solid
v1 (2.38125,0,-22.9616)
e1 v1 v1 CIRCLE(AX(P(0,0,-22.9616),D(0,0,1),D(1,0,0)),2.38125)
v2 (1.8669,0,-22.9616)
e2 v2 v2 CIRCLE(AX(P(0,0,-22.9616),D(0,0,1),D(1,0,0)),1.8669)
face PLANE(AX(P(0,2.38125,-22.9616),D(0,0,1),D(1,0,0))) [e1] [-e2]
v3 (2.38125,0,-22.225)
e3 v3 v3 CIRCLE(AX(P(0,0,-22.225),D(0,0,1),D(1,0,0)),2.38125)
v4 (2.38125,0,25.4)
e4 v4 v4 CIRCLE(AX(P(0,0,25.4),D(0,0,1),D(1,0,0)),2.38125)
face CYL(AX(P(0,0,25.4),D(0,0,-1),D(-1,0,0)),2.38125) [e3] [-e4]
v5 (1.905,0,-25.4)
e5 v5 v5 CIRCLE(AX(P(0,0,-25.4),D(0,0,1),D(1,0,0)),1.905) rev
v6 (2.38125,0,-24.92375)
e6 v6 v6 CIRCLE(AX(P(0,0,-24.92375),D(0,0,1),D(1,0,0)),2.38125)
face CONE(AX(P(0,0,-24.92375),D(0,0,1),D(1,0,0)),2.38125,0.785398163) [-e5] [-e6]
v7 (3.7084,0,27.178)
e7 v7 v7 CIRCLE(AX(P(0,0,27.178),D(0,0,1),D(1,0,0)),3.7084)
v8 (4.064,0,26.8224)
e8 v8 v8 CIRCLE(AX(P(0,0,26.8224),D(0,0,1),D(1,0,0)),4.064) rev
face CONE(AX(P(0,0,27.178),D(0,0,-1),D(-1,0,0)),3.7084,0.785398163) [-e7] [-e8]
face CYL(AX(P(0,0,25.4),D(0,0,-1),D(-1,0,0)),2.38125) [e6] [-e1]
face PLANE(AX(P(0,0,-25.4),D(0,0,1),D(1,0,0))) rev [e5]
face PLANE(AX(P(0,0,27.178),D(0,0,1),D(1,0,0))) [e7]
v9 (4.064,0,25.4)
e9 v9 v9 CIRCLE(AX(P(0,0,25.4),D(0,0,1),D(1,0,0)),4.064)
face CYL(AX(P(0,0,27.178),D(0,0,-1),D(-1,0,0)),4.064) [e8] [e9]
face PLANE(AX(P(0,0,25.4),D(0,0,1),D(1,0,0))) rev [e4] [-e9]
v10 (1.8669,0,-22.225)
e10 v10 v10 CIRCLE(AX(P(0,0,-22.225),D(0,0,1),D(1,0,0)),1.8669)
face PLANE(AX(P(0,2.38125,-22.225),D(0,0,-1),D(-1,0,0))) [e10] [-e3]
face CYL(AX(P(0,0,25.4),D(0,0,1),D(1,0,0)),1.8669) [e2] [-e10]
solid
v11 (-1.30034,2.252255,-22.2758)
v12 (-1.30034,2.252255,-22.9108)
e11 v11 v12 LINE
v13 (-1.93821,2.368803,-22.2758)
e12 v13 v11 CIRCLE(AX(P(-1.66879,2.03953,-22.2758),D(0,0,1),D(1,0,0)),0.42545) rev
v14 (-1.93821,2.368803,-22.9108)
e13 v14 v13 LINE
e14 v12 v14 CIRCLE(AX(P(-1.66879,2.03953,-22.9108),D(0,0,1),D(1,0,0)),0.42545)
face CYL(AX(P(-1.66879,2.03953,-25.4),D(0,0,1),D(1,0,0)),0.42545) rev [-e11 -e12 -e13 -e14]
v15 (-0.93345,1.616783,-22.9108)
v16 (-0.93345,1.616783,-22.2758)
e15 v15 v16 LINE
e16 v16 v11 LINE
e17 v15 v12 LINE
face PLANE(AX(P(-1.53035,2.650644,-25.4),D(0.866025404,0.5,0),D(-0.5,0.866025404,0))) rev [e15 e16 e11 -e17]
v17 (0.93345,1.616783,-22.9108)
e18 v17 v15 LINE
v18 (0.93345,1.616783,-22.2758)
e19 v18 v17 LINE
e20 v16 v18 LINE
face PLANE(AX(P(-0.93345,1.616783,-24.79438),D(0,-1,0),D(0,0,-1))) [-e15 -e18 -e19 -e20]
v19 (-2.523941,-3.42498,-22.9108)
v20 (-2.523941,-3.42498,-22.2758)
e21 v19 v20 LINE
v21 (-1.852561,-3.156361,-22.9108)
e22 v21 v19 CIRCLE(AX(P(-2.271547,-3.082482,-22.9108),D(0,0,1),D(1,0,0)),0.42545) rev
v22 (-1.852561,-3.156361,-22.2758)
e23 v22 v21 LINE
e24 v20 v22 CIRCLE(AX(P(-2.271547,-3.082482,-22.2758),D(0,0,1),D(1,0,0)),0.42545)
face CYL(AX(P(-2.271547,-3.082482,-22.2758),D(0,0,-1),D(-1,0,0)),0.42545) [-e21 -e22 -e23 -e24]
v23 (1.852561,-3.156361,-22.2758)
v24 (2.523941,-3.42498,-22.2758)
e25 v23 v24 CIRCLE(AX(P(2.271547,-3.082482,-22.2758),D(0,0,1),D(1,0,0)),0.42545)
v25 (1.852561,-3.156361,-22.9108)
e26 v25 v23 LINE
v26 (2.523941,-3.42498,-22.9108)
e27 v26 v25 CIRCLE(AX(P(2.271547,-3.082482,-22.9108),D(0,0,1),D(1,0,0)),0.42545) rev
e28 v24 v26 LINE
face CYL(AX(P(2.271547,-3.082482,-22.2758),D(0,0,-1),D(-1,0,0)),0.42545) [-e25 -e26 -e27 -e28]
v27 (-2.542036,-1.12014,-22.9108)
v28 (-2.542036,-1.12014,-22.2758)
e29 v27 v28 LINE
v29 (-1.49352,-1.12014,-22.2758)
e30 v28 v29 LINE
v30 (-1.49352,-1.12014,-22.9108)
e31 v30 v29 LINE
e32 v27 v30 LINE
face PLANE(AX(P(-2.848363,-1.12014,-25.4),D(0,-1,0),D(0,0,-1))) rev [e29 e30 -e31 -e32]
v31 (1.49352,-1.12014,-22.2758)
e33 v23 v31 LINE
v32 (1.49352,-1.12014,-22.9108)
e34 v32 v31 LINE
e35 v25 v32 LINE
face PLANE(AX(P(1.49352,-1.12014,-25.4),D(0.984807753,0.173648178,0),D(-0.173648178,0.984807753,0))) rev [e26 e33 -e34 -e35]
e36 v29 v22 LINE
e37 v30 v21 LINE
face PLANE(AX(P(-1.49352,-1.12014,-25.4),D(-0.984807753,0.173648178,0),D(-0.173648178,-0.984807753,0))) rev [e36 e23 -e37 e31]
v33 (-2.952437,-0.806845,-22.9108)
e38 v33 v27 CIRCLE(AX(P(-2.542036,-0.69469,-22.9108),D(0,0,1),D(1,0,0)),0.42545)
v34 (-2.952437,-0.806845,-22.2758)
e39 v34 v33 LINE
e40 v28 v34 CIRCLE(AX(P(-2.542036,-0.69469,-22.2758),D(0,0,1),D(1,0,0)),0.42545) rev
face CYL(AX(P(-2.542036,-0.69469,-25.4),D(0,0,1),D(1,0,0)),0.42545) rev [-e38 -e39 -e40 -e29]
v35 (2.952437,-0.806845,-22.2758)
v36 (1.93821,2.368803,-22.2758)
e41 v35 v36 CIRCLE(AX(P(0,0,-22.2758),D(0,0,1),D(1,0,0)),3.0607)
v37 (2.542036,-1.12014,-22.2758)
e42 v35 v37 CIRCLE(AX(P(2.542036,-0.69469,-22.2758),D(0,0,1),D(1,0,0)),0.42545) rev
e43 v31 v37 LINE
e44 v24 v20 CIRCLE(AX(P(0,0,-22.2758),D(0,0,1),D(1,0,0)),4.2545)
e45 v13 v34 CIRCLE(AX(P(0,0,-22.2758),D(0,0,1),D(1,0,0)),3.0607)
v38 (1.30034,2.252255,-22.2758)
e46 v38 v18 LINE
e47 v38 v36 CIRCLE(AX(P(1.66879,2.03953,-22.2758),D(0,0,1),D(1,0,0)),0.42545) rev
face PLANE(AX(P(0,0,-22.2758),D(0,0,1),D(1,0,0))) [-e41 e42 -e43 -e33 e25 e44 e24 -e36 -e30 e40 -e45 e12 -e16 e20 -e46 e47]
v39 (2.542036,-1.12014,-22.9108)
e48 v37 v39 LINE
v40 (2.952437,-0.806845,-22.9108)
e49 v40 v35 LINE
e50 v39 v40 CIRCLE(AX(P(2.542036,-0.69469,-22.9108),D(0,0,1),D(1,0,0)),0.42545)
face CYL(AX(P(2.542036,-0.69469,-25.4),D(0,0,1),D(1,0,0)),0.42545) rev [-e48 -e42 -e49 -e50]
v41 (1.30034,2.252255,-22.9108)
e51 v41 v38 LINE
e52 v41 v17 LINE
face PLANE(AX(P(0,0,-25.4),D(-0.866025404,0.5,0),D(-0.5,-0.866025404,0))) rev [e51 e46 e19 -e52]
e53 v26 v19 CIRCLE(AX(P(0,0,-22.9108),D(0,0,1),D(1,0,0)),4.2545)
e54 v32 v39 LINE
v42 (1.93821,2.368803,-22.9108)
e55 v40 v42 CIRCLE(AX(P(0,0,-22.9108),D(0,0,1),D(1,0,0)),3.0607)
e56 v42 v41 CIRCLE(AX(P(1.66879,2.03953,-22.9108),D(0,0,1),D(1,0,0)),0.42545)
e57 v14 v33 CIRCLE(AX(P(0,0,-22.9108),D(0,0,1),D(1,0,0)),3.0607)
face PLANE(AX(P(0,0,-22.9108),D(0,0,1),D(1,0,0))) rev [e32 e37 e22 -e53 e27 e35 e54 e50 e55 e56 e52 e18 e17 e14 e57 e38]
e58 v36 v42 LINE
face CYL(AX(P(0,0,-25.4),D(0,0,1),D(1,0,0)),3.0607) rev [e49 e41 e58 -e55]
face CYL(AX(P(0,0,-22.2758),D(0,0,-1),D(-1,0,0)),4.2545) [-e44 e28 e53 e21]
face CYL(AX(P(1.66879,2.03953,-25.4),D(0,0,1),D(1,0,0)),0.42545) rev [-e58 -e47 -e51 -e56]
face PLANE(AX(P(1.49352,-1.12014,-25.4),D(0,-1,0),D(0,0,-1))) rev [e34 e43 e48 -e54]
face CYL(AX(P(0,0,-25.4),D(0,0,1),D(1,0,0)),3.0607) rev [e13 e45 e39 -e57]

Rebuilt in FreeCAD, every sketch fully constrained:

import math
import FreeCAD as App
import Part
import Sketcher
from FreeCAD import Vector
Q = App.Units.Quantity


def edges_at(feature, points):
    """Names of the edges that pass closest to the given points."""
    edges = feature.Shape.Edges
    near = lambda p: min(range(len(edges)), key=lambda i: edges[i].distToShape(Part.Vertex(*p))[0])
    return sorted({f"Edge{near(p) + 1}" for p in points})


def add_polygon(sketch, points):
    """Adds a closed chain of lines whose ends are joined by coincident constraints."""
    first, n = sketch.GeometryCount, len(points)
    for a, b in zip(points, points[1:] + points[:1]):
        sketch.addGeometry(Part.LineSegment(App.Vector(*a, 0), App.Vector(*b, 0)), False)
    for i in range(n):
        sketch.addConstraint(Sketcher.Constraint("Coincident", first + i, 2, first + (i + 1) % n, 1))

doc = App.newDocument("Part")
body = doc.addObject("PartDesign::Body", "Body")

# Sketch on XY plane
sketch1 = body.newObject("Sketcher::SketchObject", "Sketch")
sketch1.AttachmentSupport = (doc.getObject("XY_Plane"), [""])
sketch1.MapMode = "FlatFace"
sketch1.addGeometry(Part.Circle(Vector(0, 0, 0), Vector(0, 0, 1), 2.4), False)
sketch1.addConstraint(Sketcher.Constraint("Coincident", 0, 3, -1, 1))
sketch1.addConstraint(Sketcher.Constraint("Diameter", 0, Q("0.1875 in")))
pad1 = body.newObject("PartDesign::Pad", "Pad")
pad1.Profile = sketch1
pad1.Length = Q("2 in")
pad1.Midplane = True

# Sketch on YZ plane
sketch2 = body.newObject("Sketcher::SketchObject", "Sketch001")
sketch2.AttachmentSupport = (doc.getObject("YZ_Plane"), [""])
sketch2.MapMode = "FlatFace"
add_polygon(sketch2, [(2.4, -22.2), (1.9, -22.2), (1.9, -23), (2.4, -23)])  # lines 0-3
sketch2.addConstraint(Sketcher.Constraint("Horizontal", 0))
sketch2.addConstraint(Sketcher.Constraint("Vertical", 1))
sketch2.addConstraint(Sketcher.Constraint("Horizontal", 2))
sketch2.addConstraint(Sketcher.Constraint("Vertical", 3))
sketch2.addConstraint(Sketcher.Constraint("DistanceY", 1, 2, 1, 1, Q("0.029 in")))
sketch2.addConstraint(Sketcher.Constraint("DistanceY", 0, 2, -1, 1, Q("0.875 in")))
sketch2.addConstraint(Sketcher.Constraint("DistanceX", -1, 1, 2, 2, Q("0.09375 in")))
sketch2.addConstraint(Sketcher.Constraint("DistanceX", -1, 1, 0, 2, Q("0.0735 in")))
groove = body.newObject("PartDesign::Groove", "Groove")
groove.Profile = sketch2
groove.ReferenceAxis = (sketch2, ["V_Axis"])
groove.Angle = 360

# Sketch on XY plane
sketch3 = body.newObject("Sketcher::SketchObject", "Sketch002")
sketch3.AttachmentSupport = (doc.getObject("XY_Plane"), [""])
sketch3.MapMode = "FlatFace"
sketch3.AttachmentOffset = App.Placement(Vector(0, 0, 1 * 25.4), App.Rotation())
sketch3.addGeometry(Part.Circle(Vector(0, 0, 0), Vector(0, 0, 1), 4.1), False)
sketch3.addConstraint(Sketcher.Constraint("Coincident", 0, 3, -1, 1))
sketch3.addConstraint(Sketcher.Constraint("Diameter", 0, Q("0.32 in")))
pad2 = body.newObject("PartDesign::Pad", "Pad001")
pad2.Profile = sketch3
pad2.Length = Q("0.07 in")
doc.recompute()

chamfer = body.newObject("PartDesign::Chamfer", "Chamfer")
chamfer.Base = (pad2, edges_at(pad2, [(-4.064, 0, 27.178)]))
chamfer.Size = Q("0.014 in")
doc.recompute()

chamfer2 = body.newObject("PartDesign::Chamfer", "Chamfer001")
chamfer2.Base = (chamfer, edges_at(chamfer, [(-2.381, 0, -25.4)]))
chamfer2.Size = 0.47625
body2 = doc.addObject("PartDesign::Body", "Body001")

# Sketch on XY plane
sketch4 = body2.newObject("Sketcher::SketchObject", "Sketch003")
sketch4.AttachmentSupport = (doc.getObject("XY_Plane001"), [""])
sketch4.MapMode = "FlatFace"
sketch4.AttachmentOffset = App.Placement(Vector(0, 0, -0.8895 * 25.4), App.Rotation())
sketch4.addGeometry(Part.Circle(Vector(0, 0, 0), Vector(0, 0, 1), 4.3), False)
sketch4.addGeometry(Part.Circle(Vector(0, 0, 0), Vector(0, 0, 1), 1.9), False)
sketch4.addConstraint(Sketcher.Constraint("Coincident", 0, 3, -1, 1))
sketch4.addConstraint(Sketcher.Constraint("Coincident", 1, 3, -1, 1))
sketch4.addConstraint(Sketcher.Constraint("Diameter", 0, Q("0.335 in")))
sketch4.addConstraint(Sketcher.Constraint("Diameter", 1, Q("0.147 in")))
pad3 = body2.newObject("PartDesign::Pad", "Pad002")
pad3.Profile = sketch4
pad3.Length = Q("0.025 in")
pad3.Midplane = True

# Sketch on XY plane
sketch5 = body2.newObject("Sketcher::SketchObject", "Sketch004")
sketch5.AttachmentSupport = (doc.getObject("XY_Plane001"), [""])
sketch5.MapMode = "FlatFace"
sketch5.addGeometry(Part.LineSegment(Vector(0, 0, 0), Vector(-1.5, 2.7, 0)), False)
sketch5.addGeometry(Part.ArcOfCircle(Part.Circle(Vector(0, 0, 0), Vector(0, 0, 1), 3.1), math.radians(120), math.radians(201)), False)
sketch5.addGeometry(Part.LineSegment(Vector(-2.8, -1.1, 0), Vector(-1.5, -1.1, 0)), False)
sketch5.addGeometry(Part.LineSegment(Vector(-1.5, -1.1, 0), Vector(-2, -3.8, 0)), False)
sketch5.addGeometry(Part.ArcOfCircle(Part.Circle(Vector(0, 0, 0), Vector(0, 0, 1), 4.3), math.radians(-117), math.radians(-63)), False)
sketch5.addGeometry(Part.LineSegment(Vector(2, -3.8, 0), Vector(1.5, -1.1, 0)), False)
sketch5.addGeometry(Part.LineSegment(Vector(1.5, -1.1, 0), Vector(2.8, -1.1, 0)), False)
sketch5.addGeometry(Part.ArcOfCircle(Part.Circle(Vector(0, 0, 0), Vector(0, 0, 1), 3.1), math.radians(-21), math.radians(60)), False)
sketch5.addGeometry(Part.LineSegment(Vector(1.5, 2.7, 0), Vector(0, 0, 0)), False)
sketch5.addConstraint(Sketcher.Constraint("Coincident", 0, 2, 1, 1))
sketch5.addConstraint(Sketcher.Constraint("Coincident", 1, 2, 2, 1))
sketch5.addConstraint(Sketcher.Constraint("Coincident", 2, 2, 3, 1))
sketch5.addConstraint(Sketcher.Constraint("Coincident", 3, 2, 4, 1))
sketch5.addConstraint(Sketcher.Constraint("Coincident", 4, 2, 5, 1))
sketch5.addConstraint(Sketcher.Constraint("Coincident", 5, 2, 6, 1))
sketch5.addConstraint(Sketcher.Constraint("Coincident", 6, 2, 7, 1))
sketch5.addConstraint(Sketcher.Constraint("Coincident", 7, 2, 8, 1))
sketch5.addConstraint(Sketcher.Constraint("Coincident", 8, 2, 0, 1))
sketch5.addConstraint(Sketcher.Constraint("Horizontal", 2))
sketch5.addConstraint(Sketcher.Constraint("Horizontal", 6))
sketch5.addConstraint(Sketcher.Constraint("Coincident", 1, 3, -1, 1))
sketch5.addConstraint(Sketcher.Constraint("Coincident", 4, 3, -1, 1))
sketch5.addConstraint(Sketcher.Constraint("Coincident", 7, 3, -1, 1))
sketch5.addConstraint(Sketcher.Constraint("Coincident", 8, 2, -1, 1))
sketch5.addConstraint(Sketcher.Constraint("Equal", 1, 7))
sketch5.addConstraint(Sketcher.Constraint("Symmetric", 2, 2, 5, 2, -2))
sketch5.addConstraint(Sketcher.Constraint("Horizontal", 3, 2, 4, 2))
sketch5.addConstraint(Sketcher.Constraint("Horizontal", 0, 2, 7, 2))
sketch5.addConstraint(Sketcher.Constraint("Angle", 0, Q("120 deg")))
sketch5.addConstraint(Sketcher.Constraint("Angle", 3, Q("-100 deg")))
sketch5.addConstraint(Sketcher.Constraint("Radius", 1, Q("0.1205 in")))
sketch5.addConstraint(Sketcher.Constraint("Radius", 4, Q("0.1675 in")))
sketch5.addConstraint(Sketcher.Constraint("DistanceY", 1, 2, -1, 1, Q("0.0441 in")))
sketch5.addConstraint(Sketcher.Constraint("DistanceX", 2, 2, -1, 1, Q("0.0588 in")))
pocket1 = body2.newObject("PartDesign::Pocket", "Pocket")
pocket1.Profile = sketch5
pocket1.Type = "ThroughAll"

# Sketch on XY plane
sketch6 = body2.newObject("Sketcher::SketchObject", "Sketch005")
sketch6.AttachmentSupport = (doc.getObject("XY_Plane001"), [""])
sketch6.MapMode = "FlatFace"
sketch6.AttachmentOffset = App.Placement(Vector(0, 0, -0.877 * 25.4), App.Rotation())
sketch6.addGeometry(Part.LineSegment(Vector(-0.9, 1.6, 0), Vector(0.9, 1.6, 0)), False)
sketch6.addGeometry(Part.ArcOfCircle(Part.Circle(Vector(0, 0, 0), Vector(0, 0, 1), 1.9), math.radians(60), math.radians(120)), False)
sketch6.addConstraint(Sketcher.Constraint("Coincident", 0, 1, 1, 2))
sketch6.addConstraint(Sketcher.Constraint("Coincident", 1, 1, 0, 2))
sketch6.addConstraint(Sketcher.Constraint("Horizontal", 0))
sketch6.addConstraint(Sketcher.Constraint("Coincident", 1, 3, -1, 1))
sketch6.addConstraint(Sketcher.Constraint("Radius", 1, Q("0.0735 in")))
sketch6.addConstraint(Sketcher.Constraint("DistanceX", 0, 1, 0, 2, Q("0.0735 in")))
pad4 = body2.newObject("PartDesign::Pad", "Pad003")
pad4.Profile = sketch6
pad4.Length = Q("0.025 in")
pad4.Reversed = True
doc.recompute()

fillet = body2.newObject("PartDesign::Fillet", "Fillet")
fillet.Base = (pad4, edges_at(pad4, [
    (1.53, 2.651, -22.593),
    (1.962, -3.775, -22.593),
    (-2.848, -1.12, -22.593),
    (2.848, -1.12, -22.593),
    (-1.962, -3.775, -22.593),
    (-1.53, 2.651, -22.593),
]))
fillet.Radius = 0.42545

doc.recompute()
